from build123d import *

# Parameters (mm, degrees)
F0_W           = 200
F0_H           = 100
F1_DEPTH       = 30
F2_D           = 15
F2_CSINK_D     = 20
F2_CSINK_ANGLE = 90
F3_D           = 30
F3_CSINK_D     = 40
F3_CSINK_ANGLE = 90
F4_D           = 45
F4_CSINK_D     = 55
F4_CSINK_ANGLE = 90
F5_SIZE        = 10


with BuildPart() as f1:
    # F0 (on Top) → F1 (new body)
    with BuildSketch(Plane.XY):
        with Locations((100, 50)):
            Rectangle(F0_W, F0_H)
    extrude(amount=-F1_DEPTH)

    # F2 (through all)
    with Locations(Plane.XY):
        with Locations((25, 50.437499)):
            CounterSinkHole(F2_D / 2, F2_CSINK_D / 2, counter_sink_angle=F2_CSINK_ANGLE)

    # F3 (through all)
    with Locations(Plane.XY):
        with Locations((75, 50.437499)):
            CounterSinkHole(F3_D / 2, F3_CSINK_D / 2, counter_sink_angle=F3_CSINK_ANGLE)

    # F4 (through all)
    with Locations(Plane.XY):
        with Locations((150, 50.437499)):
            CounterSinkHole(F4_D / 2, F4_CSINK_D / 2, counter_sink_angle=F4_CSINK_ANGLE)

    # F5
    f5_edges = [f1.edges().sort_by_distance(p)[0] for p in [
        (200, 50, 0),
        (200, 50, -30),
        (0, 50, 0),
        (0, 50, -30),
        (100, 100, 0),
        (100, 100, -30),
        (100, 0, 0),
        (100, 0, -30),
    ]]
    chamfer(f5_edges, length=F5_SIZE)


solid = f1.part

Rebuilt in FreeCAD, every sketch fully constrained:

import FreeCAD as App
import Part
import Sketcher
Q = App.Units.Quantity


def edges_at(feature, points):
    """Names of the edges that pass closest to the given points."""
    edges = feature.Shape.Edges
    near = lambda p: min(range(len(edges)), key=lambda i: edges[i].distToShape(Part.Vertex(*p))[0])
    return sorted({f"Edge{near(p) + 1}" for p in points})

doc = App.newDocument("Part")
body = doc.addObject("PartDesign::Body", "Body")

sketch1 = body.newObject("Sketcher::SketchObject", "Sketch")
sketch1.AttachmentSupport = (doc.getObject("XY_Plane"), [""])
sketch1.MapMode = "FlatFace"
sketch1.addGeometry([
    Part.LineSegment(App.Vector(0, 100, 0), App.Vector(0, 0, 0)),
    Part.LineSegment(App.Vector(0, 0, 0), App.Vector(200, 0, 0)),
    Part.LineSegment(App.Vector(200, 0, 0), App.Vector(200, 100, 0)),
    Part.LineSegment(App.Vector(200, 100, 0), App.Vector(0, 100, 0)),
], False)
sketch1.addConstraint([
    Sketcher.Constraint("Coincident", 0, 2, 1, 1),
    Sketcher.Constraint("Coincident", 1, 2, 2, 1),
    Sketcher.Constraint("Coincident", 2, 2, 3, 1),
    Sketcher.Constraint("Coincident", 3, 2, 0, 1),
    Sketcher.Constraint("Vertical", 0),
    Sketcher.Constraint("Horizontal", 1),
    Sketcher.Constraint("Vertical", 2),
    Sketcher.Constraint("Horizontal", 3),
    Sketcher.Constraint("Coincident", 0, 2, -1, 1),
    Sketcher.Constraint("DistanceX", 1, 1, 1, 2, Q("200 mm")),
    Sketcher.Constraint("DistanceY", 0, 2, 0, 1, Q("100 mm")),
])
pad1 = body.newObject("PartDesign::Pad", "Pad")
pad1.Profile = sketch1
pad1.Length = 30
pad1.Reversed = True

sketch2 = body.newObject("Sketcher::SketchObject", "Sketch001")
sketch2.AttachmentSupport = (doc.getObject("XY_Plane"), [""])
sketch2.MapMode = "FlatFace"
sketch2.addGeometry(Part.Circle(App.Vector(25, 50.437499, 0), App.Vector(0, 0, 1), 7.5), False)
sketch2.addConstraint([
    Sketcher.Constraint("Diameter", 0, Q("15 mm")),
    Sketcher.Constraint("DistanceX", -1, 1, 0, 3, Q("25 mm")),
    Sketcher.Constraint("DistanceY", -1, 1, 0, 3, Q("50.437499 mm")),
])
doc.recompute()
hole = body.newObject("PartDesign::Hole", "Hole")
hole.Profile = sketch2
hole.ThreadType = "None"
hole.Diameter = 15
hole.DepthType = "ThroughAll"
hole.HoleCutType = "Countersink"
hole.HoleCutDiameter = 20
hole.HoleCutCountersinkAngle = 90

sketch3 = body.newObject("Sketcher::SketchObject", "Sketch002")
sketch3.AttachmentSupport = (doc.getObject("XY_Plane"), [""])
sketch3.MapMode = "FlatFace"
sketch3.addGeometry(Part.Circle(App.Vector(75, 50.437499, 0), App.Vector(0, 0, 1), 15), False)
sketch3.addConstraint([
    Sketcher.Constraint("Diameter", 0, Q("30 mm")),
    Sketcher.Constraint("DistanceX", -1, 1, 0, 3, Q("75 mm")),
    Sketcher.Constraint("DistanceY", -1, 1, 0, 3, Q("50.437499 mm")),
])
doc.recompute()
hole2 = body.newObject("PartDesign::Hole", "Hole001")
hole2.Profile = sketch3
hole2.ThreadType = "None"
hole2.Diameter = 30
hole2.DepthType = "ThroughAll"
hole2.HoleCutType = "Countersink"
hole2.HoleCutDiameter = 40
hole2.HoleCutCountersinkAngle = 90

sketch4 = body.newObject("Sketcher::SketchObject", "Sketch003")
sketch4.AttachmentSupport = (doc.getObject("XY_Plane"), [""])
sketch4.MapMode = "FlatFace"
sketch4.addGeometry(Part.Circle(App.Vector(150, 50.437499, 0), App.Vector(0, 0, 1), 22.5), False)
sketch4.addConstraint([
    Sketcher.Constraint("Diameter", 0, Q("45 mm")),
    Sketcher.Constraint("DistanceX", -1, 1, 0, 3, Q("150 mm")),
    Sketcher.Constraint("DistanceY", -1, 1, 0, 3, Q("50.437499 mm")),
])
doc.recompute()
hole3 = body.newObject("PartDesign::Hole", "Hole002")
hole3.Profile = sketch4
hole3.ThreadType = "None"
hole3.Diameter = 45
hole3.DepthType = "ThroughAll"
hole3.HoleCutType = "Countersink"
hole3.HoleCutDiameter = 55
hole3.HoleCutCountersinkAngle = 90
doc.recompute()

chamfer = body.newObject("PartDesign::Chamfer", "Chamfer")
chamfer.Base = (hole3, edges_at(hole3, [
    (200, 50, 0),
    (200, 50, -30),
    (0, 50, 0),
    (0, 50, -30),
    (100, 100, 0),
    (100, 100, -30),
    (100, 0, 0),
    (100, 0, -30),
]))
chamfer.Size = 10

doc.recompute()
